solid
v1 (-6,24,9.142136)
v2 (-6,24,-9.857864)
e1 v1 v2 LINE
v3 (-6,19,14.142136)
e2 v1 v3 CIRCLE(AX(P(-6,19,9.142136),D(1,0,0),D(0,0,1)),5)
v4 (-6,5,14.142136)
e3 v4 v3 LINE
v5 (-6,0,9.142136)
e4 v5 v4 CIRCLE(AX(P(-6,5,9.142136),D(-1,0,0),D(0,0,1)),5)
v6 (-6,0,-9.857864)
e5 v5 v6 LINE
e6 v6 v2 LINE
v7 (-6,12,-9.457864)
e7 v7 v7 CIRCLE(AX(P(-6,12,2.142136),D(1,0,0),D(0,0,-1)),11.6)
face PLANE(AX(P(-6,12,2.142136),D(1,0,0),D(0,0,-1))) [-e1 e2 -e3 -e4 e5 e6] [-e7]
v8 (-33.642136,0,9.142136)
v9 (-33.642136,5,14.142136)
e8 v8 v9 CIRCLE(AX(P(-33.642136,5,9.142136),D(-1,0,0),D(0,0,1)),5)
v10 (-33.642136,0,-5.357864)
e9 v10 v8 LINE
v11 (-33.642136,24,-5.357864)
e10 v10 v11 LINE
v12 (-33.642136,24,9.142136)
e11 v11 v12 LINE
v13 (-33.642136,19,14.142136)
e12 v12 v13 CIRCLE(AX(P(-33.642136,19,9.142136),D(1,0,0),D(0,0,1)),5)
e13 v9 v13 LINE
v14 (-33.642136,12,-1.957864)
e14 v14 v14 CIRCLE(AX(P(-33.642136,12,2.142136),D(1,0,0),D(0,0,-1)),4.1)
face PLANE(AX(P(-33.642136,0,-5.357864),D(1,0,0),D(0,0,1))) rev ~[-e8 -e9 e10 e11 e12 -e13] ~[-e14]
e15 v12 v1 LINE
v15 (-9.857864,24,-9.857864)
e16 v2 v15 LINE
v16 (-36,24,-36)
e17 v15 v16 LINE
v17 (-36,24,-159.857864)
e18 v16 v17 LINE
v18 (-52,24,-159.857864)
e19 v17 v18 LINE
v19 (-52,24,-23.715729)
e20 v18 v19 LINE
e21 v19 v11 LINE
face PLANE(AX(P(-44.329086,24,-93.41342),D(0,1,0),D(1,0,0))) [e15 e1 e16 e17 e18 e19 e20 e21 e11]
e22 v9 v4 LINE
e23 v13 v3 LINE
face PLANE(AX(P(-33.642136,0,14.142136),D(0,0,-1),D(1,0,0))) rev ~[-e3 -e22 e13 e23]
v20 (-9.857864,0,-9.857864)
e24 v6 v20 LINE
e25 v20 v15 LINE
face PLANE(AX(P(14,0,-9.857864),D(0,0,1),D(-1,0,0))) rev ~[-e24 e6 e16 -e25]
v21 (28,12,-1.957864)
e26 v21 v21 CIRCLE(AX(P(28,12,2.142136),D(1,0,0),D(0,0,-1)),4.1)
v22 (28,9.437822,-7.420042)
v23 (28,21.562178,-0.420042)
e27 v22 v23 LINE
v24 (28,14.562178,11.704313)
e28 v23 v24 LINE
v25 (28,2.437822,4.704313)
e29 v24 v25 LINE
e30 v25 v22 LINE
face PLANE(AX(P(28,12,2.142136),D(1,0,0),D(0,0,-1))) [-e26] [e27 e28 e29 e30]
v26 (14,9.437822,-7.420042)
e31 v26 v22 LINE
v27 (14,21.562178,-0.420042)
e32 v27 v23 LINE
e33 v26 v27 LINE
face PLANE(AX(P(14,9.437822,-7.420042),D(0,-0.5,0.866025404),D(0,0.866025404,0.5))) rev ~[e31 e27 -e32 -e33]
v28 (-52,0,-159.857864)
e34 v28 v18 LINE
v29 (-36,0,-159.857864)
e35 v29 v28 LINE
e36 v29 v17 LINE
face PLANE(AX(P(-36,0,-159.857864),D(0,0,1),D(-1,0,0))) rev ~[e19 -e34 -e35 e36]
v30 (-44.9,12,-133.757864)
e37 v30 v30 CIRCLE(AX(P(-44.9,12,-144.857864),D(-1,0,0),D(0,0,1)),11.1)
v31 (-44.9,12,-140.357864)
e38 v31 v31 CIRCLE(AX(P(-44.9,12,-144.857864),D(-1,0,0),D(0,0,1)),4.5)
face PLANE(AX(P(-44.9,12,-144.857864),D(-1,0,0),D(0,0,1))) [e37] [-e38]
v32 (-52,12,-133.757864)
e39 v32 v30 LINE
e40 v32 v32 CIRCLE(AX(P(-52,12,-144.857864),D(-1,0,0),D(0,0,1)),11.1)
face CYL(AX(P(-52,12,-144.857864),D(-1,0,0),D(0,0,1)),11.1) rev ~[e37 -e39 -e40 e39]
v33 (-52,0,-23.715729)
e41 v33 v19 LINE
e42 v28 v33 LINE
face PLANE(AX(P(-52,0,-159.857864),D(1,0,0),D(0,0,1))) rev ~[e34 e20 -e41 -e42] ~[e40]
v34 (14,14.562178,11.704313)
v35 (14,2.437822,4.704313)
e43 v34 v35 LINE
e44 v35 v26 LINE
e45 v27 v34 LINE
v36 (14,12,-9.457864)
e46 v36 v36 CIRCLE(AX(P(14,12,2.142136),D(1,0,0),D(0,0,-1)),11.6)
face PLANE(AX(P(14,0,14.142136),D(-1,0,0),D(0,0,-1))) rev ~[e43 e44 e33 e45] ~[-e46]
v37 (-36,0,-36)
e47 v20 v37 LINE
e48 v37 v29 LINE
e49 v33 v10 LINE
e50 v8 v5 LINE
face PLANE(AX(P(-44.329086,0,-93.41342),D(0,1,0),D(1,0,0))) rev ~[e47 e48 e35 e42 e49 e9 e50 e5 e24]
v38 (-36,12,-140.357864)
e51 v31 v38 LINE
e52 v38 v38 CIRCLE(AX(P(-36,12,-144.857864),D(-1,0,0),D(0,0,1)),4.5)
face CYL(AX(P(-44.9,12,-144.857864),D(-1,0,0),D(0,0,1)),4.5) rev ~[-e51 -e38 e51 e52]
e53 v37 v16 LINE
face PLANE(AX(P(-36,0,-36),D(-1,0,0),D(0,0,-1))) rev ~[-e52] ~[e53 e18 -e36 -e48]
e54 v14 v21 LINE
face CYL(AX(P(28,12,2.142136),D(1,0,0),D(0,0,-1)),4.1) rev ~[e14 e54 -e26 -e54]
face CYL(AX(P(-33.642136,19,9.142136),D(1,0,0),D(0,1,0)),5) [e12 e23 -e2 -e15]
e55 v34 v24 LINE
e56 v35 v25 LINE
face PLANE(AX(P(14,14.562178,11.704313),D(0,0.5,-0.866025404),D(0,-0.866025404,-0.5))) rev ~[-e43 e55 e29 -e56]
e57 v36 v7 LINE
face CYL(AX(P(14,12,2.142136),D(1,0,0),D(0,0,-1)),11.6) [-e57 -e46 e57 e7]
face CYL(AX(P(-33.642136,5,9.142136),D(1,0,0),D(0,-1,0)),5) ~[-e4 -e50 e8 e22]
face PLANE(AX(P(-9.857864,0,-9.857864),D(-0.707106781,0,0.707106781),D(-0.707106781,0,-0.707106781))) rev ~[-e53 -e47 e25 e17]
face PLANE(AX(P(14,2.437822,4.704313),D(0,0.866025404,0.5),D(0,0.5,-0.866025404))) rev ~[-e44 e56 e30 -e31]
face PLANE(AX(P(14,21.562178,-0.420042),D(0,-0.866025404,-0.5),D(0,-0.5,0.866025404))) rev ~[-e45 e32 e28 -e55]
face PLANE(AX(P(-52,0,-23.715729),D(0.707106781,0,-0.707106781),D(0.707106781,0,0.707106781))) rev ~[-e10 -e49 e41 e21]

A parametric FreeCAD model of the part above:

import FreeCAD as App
import Part
import Sketcher
Q = App.Units.Quantity


def edges_at(feature, points):
    """Names of the edges that pass closest to the given points."""
    edges = feature.Shape.Edges
    near = lambda p: min(range(len(edges)), key=lambda i: edges[i].distToShape(Part.Vertex(*p))[0])
    return sorted({f"Edge{near(p) + 1}" for p in points})


def add_polygon(sketch, points):
    """Adds a closed chain of lines whose ends are joined by coincident constraints."""
    first, n = sketch.GeometryCount, len(points)
    for a, b in zip(points, points[1:] + points[:1]):
        sketch.addGeometry(Part.LineSegment(App.Vector(*a, 0), App.Vector(*b, 0)), False)
    for i in range(n):
        sketch.addConstraint(Sketcher.Constraint("Coincident", first + i, 2, first + (i + 1) % n, 1))

doc = App.newDocument("Part")
params = doc.addObject("Spreadsheet::Sheet", "Params")
for row, (alias, value) in enumerate([
    ("sketch1_width", "16 mm"),
    ("sketch1_height", "24 mm"),
    ("sketch1_height2", "19.5 mm"),
    ("pad1_length", "24 mm"),
    ("sketch2_diameter", "23.2 mm"),
    ("sketch2_width", "24 mm"),
    ("pocket1_length", "20 mm"),
    ("sketch3_diameter", "8.2 mm"),
    ("fillet_radius", "5 mm"),
    ("sketch4_length", "14 mm"),
    ("pad2_length", "14 mm"),
    ("sketch5_diameter", "8.2 mm"),
    ("sketch6_diameter", "22.2 mm"),
    ("pocket4_length", "7.1 mm"),
    ("sketch7_diameter", "9 mm"),
], start=1):
    params.set(f"A{row}", alias)
    params.set(f"B{row}", "=" + value)
    params.setAlias(f"B{row}", alias)

body = doc.addObject("PartDesign::Body", "Body")

# Sketch on XZ plane
sketch1 = body.newObject("Sketcher::SketchObject", "Sketch")
sketch1.AttachmentSupport = (doc.getObject("XZ_Plane"), [""])
sketch1.MapMode = "FlatFace"
add_polygon(sketch1, [(-36, -160), (-52, -160), (-52, -24), (-34, -5), (-34, 14), (14, 14), (14, -10), (-10, -10), (-36, -36)])  # lines 0-8
sketch1.addConstraint([
    Sketcher.Constraint("Horizontal", 0),
    Sketcher.Constraint("Vertical", 1),
    Sketcher.Constraint("Vertical", 3),
    Sketcher.Constraint("Horizontal", 4),
    Sketcher.Constraint("Vertical", 5),
    Sketcher.Constraint("Horizontal", 6),
    Sketcher.Constraint("Vertical", 8),
    Sketcher.Constraint("Parallel", 2, 7),
    Sketcher.Constraint("DistanceX", 0, 2, 0, 1, Q("16 mm")),
    Sketcher.Constraint("DistanceY", 5, 2, 5, 1, Q("24 mm")),
    Sketcher.Constraint("Angle", 2, Q("45 deg")),
    Sketcher.Constraint("DistanceY", 3, 1, 3, 2, Q("19.5 mm")),
    Sketcher.Constraint("DistanceX", 0, 2, -1, 1, Q("52 mm")),
    Sketcher.Constraint("DistanceX", -1, 1, 4, 2, Q("14 mm")),
    Sketcher.Constraint("DistanceY", 7, 2, -1, 1, Q("36 mm")),
    Sketcher.Constraint("DistanceY", 0, 2, 3, 2, Q("174 mm")),
    Sketcher.Constraint("Distance", 2, Q("25.961941 mm")),
    Sketcher.Constraint("DistanceX", 6, 2, 6, 1, Q("23.857864 mm")),
])
sketch1.setExpression("Constraints[17]", "Params.sketch1_width")
sketch1.setExpression("Constraints[18]", "Params.sketch1_height")
sketch1.setExpression("Constraints[20]", "Params.sketch1_height2")
pad1 = body.newObject("PartDesign::Pad", "Pad")
pad1.Profile = sketch1
pad1.setExpression("Length", "Params.pad1_length")
pad1.Reversed = True

# Sketch on YZ plane
sketch2 = body.newObject("Sketcher::SketchObject", "Sketch001")
sketch2.AttachmentSupport = (doc.getObject("YZ_Plane"), [""])
sketch2.MapMode = "FlatFace"
sketch2.AttachmentOffset = App.Placement(App.Vector(0, 0, 14), App.Rotation())
add_polygon(sketch2, [(24, 14), (0, 14), (0, -10), (24, -10)])  # lines 0-3
sketch2.addGeometry(Part.Circle(App.Vector(12, 2, 0), App.Vector(0, 0, 1), 12), False)  # 4
sketch2.addConstraint([
    Sketcher.Constraint("Horizontal", 0),
    Sketcher.Constraint("Vertical", 1),
    Sketcher.Constraint("Horizontal", 2),
    Sketcher.Constraint("Vertical", 3),
    Sketcher.Constraint("PointOnObject", 0, 2, -2),
    Sketcher.Constraint("Equal", 2, 1),
    Sketcher.Constraint("Diameter", 4, Q("23.2 mm")),
    Sketcher.Constraint("DistanceX", 0, 2, 0, 1, Q("24 mm")),
    Sketcher.Constraint("DistanceX", -1, 1, 4, 3, Q("12 mm")),
    Sketcher.Constraint("DistanceY", 4, 3, 0, 2, Q("12 mm")),
    Sketcher.Constraint("DistanceY", -1, 1, 4, 3, Q("2.142136 mm")),
])
sketch2.setExpression("Constraints[10]", "Params.sketch2_diameter")
sketch2.setExpression("Constraints[11]", "Params.sketch2_width")
pocket1 = body.newObject("PartDesign::Pocket", "Pocket")
pocket1.Profile = sketch2
pocket1.setExpression("Length", "Params.pocket1_length")

# Sketch on YZ plane
sketch3 = body.newObject("Sketcher::SketchObject", "Sketch002")
sketch3.AttachmentSupport = (doc.getObject("YZ_Plane"), [""])
sketch3.MapMode = "FlatFace"
sketch3.AttachmentOffset = App.Placement(App.Vector(0, 0, 14), App.Rotation())
sketch3.addGeometry(Part.Circle(App.Vector(12, 2.1, 0), App.Vector(0, 0, 1), 4.1), False)
sketch3.addConstraint([
    Sketcher.Constraint("Diameter", 0, Q("8.2 mm")),
    Sketcher.Constraint("DistanceX", -1, 1, 0, 3, Q("12 mm")),
    Sketcher.Constraint("DistanceY", -1, 1, 0, 3, Q("2.142136 mm")),
])
sketch3.setExpression("Constraints[0]", "Params.sketch3_diameter")
pocket2 = body.newObject("PartDesign::Pocket", "Pocket001")
pocket2.Profile = sketch3
pocket2.Type = "ThroughAll"
pocket2.Midplane = True
doc.recompute()

fillet = body.newObject("PartDesign::Fillet", "Fillet")
fillet.Base = (pocket2, edges_at(pocket2, [(-19.821, 0, 14.142), (-19.821, 24, 14.142)]))
fillet.setExpression("Radius", "Params.fillet_radius")

# Sketch on YZ plane
sketch4 = body.newObject("Sketcher::SketchObject", "Sketch003")
sketch4.AttachmentSupport = (doc.getObject("YZ_Plane"), [""])
sketch4.MapMode = "FlatFace"
sketch4.AttachmentOffset = App.Placement(App.Vector(0, 0, 14), App.Rotation())
add_polygon(sketch4, [(22, 0), (15, 12), (2, 5), (9, -7)])  # lines 0-3
sketch4.addConstraint([
    Sketcher.Constraint("Perpendicular", 0, 1),
    Sketcher.Constraint("Perpendicular", 1, 2),
    Sketcher.Constraint("Perpendicular", 2, 3),
    Sketcher.Constraint("Equal", 0, 1),
    Sketcher.Constraint("Angle", 0, Q("120 deg")),
    Sketcher.Constraint("Distance", 0, Q("14 mm")),
    Sketcher.Constraint("DistanceX", -1, 1, 0, 2, Q("14.562178 mm")),
    Sketcher.Constraint("DistanceY", -1, 1, 0, 2, Q("11.704313 mm")),
])
sketch4.setExpression("Constraints[9]", "Params.sketch4_length")
pad2 = body.newObject("PartDesign::Pad", "Pad001")
pad2.Profile = sketch4
pad2.setExpression("Length", "Params.pad2_length")

# Sketch on YZ plane
sketch5 = body.newObject("Sketcher::SketchObject", "Sketch004")
sketch5.AttachmentSupport = (doc.getObject("YZ_Plane"), [""])
sketch5.MapMode = "FlatFace"
sketch5.AttachmentOffset = App.Placement(App.Vector(0, 0, 28), App.Rotation())
sketch5.addGeometry(Part.Circle(App.Vector(12, 2.1, 0), App.Vector(0, 0, 1), 4.1), False)
sketch5.addConstraint([
    Sketcher.Constraint("Diameter", 0, Q("8.2 mm")),
    Sketcher.Constraint("DistanceX", -1, 1, 0, 3, Q("12 mm")),
    Sketcher.Constraint("DistanceY", -1, 1, 0, 3, Q("2.142136 mm")),
])
sketch5.setExpression("Constraints[0]", "Params.sketch5_diameter")
pocket3 = body.newObject("PartDesign::Pocket", "Pocket002")
pocket3.Profile = sketch5
pocket3.Type = "ThroughAll"

# Sketch on YZ plane
sketch6 = body.newObject("Sketcher::SketchObject", "Sketch005")
sketch6.AttachmentSupport = (doc.getObject("YZ_Plane"), [""])
sketch6.MapMode = "FlatFace"
sketch6.AttachmentOffset = App.Placement(App.Vector(0, 0, -52), App.Rotation())
sketch6.addGeometry(Part.Circle(App.Vector(12, -145, 0), App.Vector(0, 0, 1), 11), False)
sketch6.addConstraint([
    Sketcher.Constraint("Diameter", 0, Q("22.2 mm")),
    Sketcher.Constraint("DistanceX", -1, 1, 0, 3, Q("12 mm")),
    Sketcher.Constraint("DistanceY", 0, 3, -1, 1, Q("144.857864 mm")),
])
sketch6.setExpression("Constraints[0]", "Params.sketch6_diameter")
pocket4 = body.newObject("PartDesign::Pocket", "Pocket003")
pocket4.Profile = sketch6
pocket4.setExpression("Length", "Params.pocket4_length")
pocket4.Reversed = True

# Sketch on YZ plane
sketch7 = body.newObject("Sketcher::SketchObject", "Sketch006")
sketch7.AttachmentSupport = (doc.getObject("YZ_Plane"), [""])
sketch7.MapMode = "FlatFace"
sketch7.AttachmentOffset = App.Placement(App.Vector(0, 0, -44.9), App.Rotation())
sketch7.addGeometry(Part.Circle(App.Vector(12, -144.9, 0), App.Vector(0, 0, 1), 4.5), False)
sketch7.addConstraint([
    Sketcher.Constraint("Diameter", 0, Q("9 mm")),
    Sketcher.Constraint("DistanceX", -1, 1, 0, 3, Q("12 mm")),
    Sketcher.Constraint("DistanceY", 0, 3, -1, 1, Q("144.857864 mm")),
])
sketch7.setExpression("Constraints[0]", "Params.sketch7_diameter")
pocket5 = body.newObject("PartDesign::Pocket", "Pocket004")
pocket5.Profile = sketch7
pocket5.Type = "ThroughAll"
pocket5.Reversed = True

doc.recompute()
